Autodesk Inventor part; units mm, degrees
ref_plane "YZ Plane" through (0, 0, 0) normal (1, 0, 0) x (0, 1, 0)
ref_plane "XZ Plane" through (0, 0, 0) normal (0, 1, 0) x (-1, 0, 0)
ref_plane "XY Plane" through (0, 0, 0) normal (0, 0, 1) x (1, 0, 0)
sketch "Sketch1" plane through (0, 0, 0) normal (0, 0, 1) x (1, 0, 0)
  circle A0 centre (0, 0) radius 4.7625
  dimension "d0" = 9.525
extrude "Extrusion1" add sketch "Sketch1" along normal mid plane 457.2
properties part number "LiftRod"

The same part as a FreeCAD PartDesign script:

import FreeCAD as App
import Part
import Sketcher

V = App.Vector
Q = App.Units.Quantity

doc = App.newDocument("Part")
body = doc.addObject("PartDesign::Body", "Body")

sketch1 = doc.addObject("Sketcher::SketchObject", "Sketch")
body.addObject(sketch1)
sketch1.AttachmentSupport = (doc.XY_Plane, [""])
sketch1.MapMode = "FlatFace"
sketch1.addGeometry(Part.Circle(V(0, 0, 0), V(0, 0, 1), 4.8), False)
sketch1.addConstraint([
    Sketcher.Constraint("Coincident", 0, 3, -1, 1),
    Sketcher.Constraint("Diameter", 0, Q("0.375 in")),
])
pad1 = doc.addObject("PartDesign::Pad", "Pad")
body.addObject(pad1)
pad1.Profile = sketch1
pad1.Length = Q("18 in")
pad1.Midplane = True

doc.recompute()
